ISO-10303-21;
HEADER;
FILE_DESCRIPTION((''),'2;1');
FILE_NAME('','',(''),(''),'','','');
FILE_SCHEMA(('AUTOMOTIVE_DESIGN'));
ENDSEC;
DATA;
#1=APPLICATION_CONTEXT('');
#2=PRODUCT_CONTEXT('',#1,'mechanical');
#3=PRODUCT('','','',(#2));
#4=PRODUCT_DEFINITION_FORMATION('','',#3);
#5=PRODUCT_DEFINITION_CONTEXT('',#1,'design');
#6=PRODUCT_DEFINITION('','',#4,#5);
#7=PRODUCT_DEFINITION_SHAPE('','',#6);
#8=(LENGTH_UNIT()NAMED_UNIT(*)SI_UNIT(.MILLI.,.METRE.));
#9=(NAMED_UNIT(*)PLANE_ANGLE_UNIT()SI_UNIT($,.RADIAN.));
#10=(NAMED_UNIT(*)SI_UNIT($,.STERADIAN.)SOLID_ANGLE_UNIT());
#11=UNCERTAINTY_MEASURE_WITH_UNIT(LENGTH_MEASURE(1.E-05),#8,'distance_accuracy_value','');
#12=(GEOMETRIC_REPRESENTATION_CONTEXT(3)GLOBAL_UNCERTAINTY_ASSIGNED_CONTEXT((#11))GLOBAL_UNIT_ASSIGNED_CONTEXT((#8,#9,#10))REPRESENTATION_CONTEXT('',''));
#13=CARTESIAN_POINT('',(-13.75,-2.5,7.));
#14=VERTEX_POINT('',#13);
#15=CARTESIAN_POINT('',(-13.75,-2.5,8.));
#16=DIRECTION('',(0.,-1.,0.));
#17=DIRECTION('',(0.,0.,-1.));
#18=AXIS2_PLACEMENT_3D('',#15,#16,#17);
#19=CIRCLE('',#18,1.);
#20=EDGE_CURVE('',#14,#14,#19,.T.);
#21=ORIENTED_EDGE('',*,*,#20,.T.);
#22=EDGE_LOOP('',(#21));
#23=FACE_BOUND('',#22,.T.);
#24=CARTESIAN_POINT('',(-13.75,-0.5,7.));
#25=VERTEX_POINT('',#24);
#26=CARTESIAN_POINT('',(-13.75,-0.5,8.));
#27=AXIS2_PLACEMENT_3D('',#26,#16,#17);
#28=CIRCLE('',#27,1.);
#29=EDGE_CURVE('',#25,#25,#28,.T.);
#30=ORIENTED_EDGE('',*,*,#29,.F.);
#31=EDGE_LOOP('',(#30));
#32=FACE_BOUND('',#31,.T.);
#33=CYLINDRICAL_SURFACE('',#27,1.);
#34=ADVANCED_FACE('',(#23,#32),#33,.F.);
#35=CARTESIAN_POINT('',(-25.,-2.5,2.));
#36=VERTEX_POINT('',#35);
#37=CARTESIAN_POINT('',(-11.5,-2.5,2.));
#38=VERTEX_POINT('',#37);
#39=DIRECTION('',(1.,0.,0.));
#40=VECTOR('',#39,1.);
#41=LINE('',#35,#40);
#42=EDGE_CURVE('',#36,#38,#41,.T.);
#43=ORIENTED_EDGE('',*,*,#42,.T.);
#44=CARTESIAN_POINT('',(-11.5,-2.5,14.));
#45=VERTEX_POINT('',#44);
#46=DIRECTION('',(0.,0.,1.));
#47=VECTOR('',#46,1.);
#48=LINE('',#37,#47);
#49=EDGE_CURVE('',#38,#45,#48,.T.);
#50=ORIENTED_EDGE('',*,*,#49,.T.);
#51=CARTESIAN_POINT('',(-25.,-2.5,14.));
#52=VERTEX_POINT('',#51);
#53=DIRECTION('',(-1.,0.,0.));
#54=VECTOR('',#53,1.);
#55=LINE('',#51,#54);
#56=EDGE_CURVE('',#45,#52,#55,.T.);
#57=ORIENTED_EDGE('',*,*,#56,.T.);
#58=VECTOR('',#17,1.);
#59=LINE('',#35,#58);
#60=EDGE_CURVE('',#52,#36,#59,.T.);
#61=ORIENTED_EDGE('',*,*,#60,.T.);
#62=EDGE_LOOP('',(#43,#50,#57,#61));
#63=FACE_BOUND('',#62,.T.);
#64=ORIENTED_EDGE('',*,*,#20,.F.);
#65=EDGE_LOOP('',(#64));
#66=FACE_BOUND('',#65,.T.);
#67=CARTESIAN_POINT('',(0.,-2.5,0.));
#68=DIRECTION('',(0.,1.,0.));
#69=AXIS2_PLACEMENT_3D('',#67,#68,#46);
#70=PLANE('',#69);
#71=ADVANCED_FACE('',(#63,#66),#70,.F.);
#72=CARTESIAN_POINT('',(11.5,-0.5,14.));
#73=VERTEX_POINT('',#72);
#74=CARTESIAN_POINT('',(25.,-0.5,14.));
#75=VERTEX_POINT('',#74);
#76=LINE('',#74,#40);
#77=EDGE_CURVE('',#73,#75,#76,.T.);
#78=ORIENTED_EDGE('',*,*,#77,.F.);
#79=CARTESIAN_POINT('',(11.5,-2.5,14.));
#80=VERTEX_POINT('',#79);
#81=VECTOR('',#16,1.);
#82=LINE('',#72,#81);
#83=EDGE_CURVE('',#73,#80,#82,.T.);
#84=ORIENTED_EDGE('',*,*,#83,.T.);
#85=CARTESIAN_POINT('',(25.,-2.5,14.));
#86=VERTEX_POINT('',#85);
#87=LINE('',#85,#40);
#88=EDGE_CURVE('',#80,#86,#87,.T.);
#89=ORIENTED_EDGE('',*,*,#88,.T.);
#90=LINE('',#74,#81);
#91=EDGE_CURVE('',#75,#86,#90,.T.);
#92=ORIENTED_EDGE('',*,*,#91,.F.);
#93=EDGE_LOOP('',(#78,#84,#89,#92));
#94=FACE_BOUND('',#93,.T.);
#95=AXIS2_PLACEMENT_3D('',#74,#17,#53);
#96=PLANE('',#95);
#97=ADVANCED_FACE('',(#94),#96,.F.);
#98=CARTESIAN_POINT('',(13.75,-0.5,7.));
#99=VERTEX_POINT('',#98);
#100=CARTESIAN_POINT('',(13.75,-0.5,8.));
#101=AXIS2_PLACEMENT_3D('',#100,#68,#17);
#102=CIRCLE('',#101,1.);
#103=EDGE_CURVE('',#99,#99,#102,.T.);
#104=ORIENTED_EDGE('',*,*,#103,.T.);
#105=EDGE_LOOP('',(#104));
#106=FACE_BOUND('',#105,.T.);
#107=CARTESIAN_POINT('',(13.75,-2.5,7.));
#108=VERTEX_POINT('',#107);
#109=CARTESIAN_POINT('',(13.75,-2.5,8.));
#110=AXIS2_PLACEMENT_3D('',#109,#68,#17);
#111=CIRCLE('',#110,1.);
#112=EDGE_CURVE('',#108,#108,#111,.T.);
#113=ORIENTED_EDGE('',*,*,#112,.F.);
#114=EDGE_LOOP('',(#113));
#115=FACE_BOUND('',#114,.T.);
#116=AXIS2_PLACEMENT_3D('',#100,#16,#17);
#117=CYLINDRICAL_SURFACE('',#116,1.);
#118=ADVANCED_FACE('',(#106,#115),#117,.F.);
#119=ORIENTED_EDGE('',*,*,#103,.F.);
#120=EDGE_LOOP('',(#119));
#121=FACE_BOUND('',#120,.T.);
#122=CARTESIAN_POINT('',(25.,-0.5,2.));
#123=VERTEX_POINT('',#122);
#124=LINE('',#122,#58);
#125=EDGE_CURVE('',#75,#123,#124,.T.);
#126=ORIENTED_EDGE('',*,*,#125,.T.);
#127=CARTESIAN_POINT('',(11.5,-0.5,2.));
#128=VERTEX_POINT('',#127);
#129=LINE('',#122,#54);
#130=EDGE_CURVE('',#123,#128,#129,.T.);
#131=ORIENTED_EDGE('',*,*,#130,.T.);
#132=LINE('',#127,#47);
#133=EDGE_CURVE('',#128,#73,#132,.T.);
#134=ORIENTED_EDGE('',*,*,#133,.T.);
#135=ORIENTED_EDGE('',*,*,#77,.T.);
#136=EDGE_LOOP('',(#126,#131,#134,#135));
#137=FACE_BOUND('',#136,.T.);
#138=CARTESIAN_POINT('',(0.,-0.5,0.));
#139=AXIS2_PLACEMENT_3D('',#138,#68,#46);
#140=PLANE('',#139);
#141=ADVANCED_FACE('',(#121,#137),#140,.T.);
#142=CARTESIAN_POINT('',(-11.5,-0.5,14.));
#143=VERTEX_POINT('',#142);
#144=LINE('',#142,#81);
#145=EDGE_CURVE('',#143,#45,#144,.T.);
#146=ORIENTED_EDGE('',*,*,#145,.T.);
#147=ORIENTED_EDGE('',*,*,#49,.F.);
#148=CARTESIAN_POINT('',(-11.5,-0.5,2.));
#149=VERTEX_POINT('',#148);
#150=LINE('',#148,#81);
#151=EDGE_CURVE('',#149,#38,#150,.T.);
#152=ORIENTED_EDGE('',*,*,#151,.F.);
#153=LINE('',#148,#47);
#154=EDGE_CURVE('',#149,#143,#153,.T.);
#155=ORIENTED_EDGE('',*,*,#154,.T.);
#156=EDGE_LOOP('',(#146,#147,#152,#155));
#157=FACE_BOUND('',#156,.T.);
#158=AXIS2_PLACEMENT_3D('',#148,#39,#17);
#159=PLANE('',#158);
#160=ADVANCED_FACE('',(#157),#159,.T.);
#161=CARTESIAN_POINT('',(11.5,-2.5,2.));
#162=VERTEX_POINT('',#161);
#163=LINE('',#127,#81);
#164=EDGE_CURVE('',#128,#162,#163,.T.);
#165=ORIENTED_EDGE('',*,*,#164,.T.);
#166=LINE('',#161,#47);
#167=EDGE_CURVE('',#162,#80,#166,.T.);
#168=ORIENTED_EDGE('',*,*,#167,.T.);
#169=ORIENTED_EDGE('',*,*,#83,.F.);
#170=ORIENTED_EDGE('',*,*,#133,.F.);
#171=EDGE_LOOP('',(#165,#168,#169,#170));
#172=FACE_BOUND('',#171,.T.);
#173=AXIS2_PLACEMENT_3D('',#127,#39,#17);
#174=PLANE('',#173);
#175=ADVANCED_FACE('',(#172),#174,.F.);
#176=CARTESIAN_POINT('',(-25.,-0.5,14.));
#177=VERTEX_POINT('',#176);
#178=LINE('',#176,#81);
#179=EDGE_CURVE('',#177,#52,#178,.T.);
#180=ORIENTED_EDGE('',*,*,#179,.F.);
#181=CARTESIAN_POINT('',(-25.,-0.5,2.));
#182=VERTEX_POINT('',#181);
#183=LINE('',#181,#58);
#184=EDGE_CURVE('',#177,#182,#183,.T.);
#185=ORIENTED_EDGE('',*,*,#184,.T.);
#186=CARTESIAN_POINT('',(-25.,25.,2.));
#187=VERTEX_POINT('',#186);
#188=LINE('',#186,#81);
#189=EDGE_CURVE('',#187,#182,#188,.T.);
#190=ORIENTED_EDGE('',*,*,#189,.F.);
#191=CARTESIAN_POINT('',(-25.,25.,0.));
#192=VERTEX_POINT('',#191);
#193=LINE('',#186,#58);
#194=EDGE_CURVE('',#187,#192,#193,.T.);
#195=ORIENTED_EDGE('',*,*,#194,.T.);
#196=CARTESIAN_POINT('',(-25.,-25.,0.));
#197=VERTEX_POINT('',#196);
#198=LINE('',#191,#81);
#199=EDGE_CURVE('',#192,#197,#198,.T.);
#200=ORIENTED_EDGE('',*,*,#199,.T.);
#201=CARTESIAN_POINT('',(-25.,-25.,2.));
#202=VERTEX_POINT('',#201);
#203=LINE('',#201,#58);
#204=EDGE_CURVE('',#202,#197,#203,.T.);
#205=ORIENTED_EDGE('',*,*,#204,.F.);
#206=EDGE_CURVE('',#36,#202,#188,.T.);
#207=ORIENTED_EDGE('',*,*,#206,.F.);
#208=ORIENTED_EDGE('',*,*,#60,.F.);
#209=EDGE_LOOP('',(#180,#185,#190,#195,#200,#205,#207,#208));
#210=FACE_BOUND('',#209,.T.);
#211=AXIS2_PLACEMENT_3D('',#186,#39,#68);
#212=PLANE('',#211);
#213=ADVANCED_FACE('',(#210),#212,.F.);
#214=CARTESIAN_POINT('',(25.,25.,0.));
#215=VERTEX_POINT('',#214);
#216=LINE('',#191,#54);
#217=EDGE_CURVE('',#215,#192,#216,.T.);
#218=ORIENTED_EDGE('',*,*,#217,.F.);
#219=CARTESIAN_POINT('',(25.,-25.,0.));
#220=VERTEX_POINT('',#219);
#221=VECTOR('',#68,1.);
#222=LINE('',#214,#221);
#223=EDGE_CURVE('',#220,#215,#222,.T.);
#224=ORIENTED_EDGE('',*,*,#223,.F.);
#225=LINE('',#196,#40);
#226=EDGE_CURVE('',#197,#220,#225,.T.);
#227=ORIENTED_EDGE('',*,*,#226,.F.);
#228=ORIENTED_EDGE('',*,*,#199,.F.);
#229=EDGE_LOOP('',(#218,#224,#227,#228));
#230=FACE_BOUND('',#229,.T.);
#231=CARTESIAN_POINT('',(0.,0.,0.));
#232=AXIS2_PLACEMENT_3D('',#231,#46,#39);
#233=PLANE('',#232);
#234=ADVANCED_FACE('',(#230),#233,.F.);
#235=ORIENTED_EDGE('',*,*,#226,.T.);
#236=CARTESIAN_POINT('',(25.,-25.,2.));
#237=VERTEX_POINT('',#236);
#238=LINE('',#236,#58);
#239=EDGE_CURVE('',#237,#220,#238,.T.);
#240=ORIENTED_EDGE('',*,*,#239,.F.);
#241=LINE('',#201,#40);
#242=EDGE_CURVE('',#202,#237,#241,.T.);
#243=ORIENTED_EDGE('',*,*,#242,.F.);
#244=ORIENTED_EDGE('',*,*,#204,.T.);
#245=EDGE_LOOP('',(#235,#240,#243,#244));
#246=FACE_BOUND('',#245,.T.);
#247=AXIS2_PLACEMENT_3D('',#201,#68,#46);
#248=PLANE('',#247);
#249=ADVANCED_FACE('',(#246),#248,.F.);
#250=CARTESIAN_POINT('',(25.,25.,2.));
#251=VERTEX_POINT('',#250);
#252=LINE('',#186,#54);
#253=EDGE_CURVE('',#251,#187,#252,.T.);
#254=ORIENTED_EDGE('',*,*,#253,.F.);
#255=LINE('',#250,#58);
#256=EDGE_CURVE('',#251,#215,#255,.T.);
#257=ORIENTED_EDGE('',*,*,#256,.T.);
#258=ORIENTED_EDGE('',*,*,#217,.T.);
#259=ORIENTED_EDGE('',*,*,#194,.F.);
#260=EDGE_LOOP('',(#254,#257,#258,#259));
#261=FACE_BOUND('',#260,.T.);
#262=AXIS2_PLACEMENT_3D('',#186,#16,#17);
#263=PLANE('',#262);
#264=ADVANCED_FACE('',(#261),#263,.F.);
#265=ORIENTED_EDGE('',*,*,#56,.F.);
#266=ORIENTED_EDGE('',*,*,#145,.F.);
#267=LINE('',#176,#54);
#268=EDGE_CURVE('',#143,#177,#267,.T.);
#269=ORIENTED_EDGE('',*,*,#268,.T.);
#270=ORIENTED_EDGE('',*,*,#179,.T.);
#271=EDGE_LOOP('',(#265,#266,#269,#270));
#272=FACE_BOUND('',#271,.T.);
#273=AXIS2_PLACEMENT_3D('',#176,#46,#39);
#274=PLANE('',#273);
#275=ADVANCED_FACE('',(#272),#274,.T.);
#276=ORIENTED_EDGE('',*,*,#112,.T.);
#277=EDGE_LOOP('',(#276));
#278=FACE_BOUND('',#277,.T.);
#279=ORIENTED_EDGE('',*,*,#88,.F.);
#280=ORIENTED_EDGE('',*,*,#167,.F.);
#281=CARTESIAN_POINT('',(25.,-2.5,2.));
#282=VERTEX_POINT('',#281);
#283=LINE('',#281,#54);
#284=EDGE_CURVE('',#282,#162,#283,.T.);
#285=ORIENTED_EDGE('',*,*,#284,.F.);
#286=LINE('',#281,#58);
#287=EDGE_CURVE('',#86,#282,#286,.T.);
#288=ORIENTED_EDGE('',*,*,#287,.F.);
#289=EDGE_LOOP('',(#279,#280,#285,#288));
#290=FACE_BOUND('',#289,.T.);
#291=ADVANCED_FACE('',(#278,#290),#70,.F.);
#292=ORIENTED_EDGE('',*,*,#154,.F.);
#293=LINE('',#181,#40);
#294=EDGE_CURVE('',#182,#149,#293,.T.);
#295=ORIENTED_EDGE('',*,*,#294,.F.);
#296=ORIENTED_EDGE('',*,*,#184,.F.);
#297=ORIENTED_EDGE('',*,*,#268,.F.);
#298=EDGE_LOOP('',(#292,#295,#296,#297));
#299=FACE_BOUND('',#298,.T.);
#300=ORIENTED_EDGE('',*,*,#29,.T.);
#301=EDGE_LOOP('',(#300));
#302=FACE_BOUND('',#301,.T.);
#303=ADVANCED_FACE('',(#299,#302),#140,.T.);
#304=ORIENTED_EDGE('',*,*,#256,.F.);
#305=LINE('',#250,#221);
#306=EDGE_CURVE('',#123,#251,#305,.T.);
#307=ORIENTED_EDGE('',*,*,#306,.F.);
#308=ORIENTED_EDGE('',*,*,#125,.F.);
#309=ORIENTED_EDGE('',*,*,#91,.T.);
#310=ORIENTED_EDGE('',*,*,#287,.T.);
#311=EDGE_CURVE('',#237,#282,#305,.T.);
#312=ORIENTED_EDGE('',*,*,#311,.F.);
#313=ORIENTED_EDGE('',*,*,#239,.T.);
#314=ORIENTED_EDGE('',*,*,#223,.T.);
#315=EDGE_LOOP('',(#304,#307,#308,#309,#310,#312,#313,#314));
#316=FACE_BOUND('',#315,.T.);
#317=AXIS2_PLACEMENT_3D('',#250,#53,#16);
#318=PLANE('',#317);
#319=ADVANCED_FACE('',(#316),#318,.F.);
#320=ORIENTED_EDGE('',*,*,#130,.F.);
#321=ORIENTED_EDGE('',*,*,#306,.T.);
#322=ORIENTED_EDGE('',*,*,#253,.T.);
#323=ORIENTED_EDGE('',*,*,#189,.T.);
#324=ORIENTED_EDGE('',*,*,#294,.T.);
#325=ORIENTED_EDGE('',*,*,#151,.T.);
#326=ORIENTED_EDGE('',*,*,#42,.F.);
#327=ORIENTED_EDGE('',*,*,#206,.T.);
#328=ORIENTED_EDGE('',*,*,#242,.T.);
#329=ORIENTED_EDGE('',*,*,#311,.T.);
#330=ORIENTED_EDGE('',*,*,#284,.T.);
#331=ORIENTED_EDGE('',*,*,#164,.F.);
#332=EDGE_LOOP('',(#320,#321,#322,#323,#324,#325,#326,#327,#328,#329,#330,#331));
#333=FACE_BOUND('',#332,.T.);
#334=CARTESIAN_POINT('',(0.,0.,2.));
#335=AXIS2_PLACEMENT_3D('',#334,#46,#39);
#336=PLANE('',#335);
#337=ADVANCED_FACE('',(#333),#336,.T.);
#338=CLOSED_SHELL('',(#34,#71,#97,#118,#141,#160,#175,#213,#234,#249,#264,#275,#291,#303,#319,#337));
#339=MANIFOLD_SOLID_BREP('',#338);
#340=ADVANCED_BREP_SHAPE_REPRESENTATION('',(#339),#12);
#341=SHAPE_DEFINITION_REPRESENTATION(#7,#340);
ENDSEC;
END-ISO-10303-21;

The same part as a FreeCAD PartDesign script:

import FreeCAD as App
import Part
import Sketcher
from FreeCAD import Vector
Q = App.Units.Quantity


def add_polygon(sketch, points):
    """Adds a closed chain of lines whose ends are joined by coincident constraints."""
    first, n = sketch.GeometryCount, len(points)
    for a, b in zip(points, points[1:] + points[:1]):
        sketch.addGeometry(Part.LineSegment(App.Vector(*a, 0), App.Vector(*b, 0)), False)
    for i in range(n):
        sketch.addConstraint(Sketcher.Constraint("Coincident", first + i, 2, first + (i + 1) % n, 1))

doc = App.newDocument("Part")
params = doc.addObject("Spreadsheet::Sheet", "Params")
for row, (alias, value) in enumerate([
    ("sketch1_width", "50 mm"),
    ("pad1_length", "2 mm"),
    ("sketch2_diameter", "2 mm"),
    ("sketch2_height", "12 mm"),
    ("sketch2_width", "13.5 mm"),
    ("pad2_length", "2 mm"),
], start=1):
    params.set(f"A{row}", alias)
    params.set(f"B{row}", "=" + value)
    params.setAlias(f"B{row}", alias)

body = doc.addObject("PartDesign::Body", "Body")

# Sketch on XY plane
sketch1 = body.newObject("Sketcher::SketchObject", "Sketch")
sketch1.AttachmentSupport = (doc.getObject("XY_Plane"), [""])
sketch1.MapMode = "FlatFace"
add_polygon(sketch1, [(-25, 25), (-25, -25), (25, -25), (25, 25)])  # lines 0-3
sketch1.addConstraint([
    Sketcher.Constraint("Vertical", 0),
    Sketcher.Constraint("Horizontal", 1),
    Sketcher.Constraint("Vertical", 2),
    Sketcher.Constraint("Horizontal", 3),
    Sketcher.Constraint("Symmetric", 0, 2, 2, 2, -1, 1),
    Sketcher.Constraint("Equal", 3, 0),
    Sketcher.Constraint("DistanceX", 1, 1, 1, 2, Q("50 mm")),
])
sketch1.setExpression("Constraints[10]", "Params.sketch1_width")
pad1 = body.newObject("PartDesign::Pad", "Pad")
pad1.Profile = sketch1
pad1.setExpression("Length", "Params.pad1_length")

# Sketch on XZ plane
sketch2 = body.newObject("Sketcher::SketchObject", "Sketch001")
sketch2.AttachmentSupport = (doc.getObject("XZ_Plane"), [""])
sketch2.MapMode = "FlatFace"
sketch2.AttachmentOffset = App.Placement(Vector(0, 0, 2.5), App.Rotation())
add_polygon(sketch2, [(-25, 14), (-25, 2), (-11.5, 2), (-11.5, 14)])  # lines 0-3
sketch2.addGeometry(Part.Circle(Vector(-13.8, 8, 0), Vector(0, 0, 1), 1), False)  # 4
sketch2.addConstraint([
    Sketcher.Constraint("Vertical", 0),
    Sketcher.Constraint("Horizontal", 1),
    Sketcher.Constraint("Vertical", 2),
    Sketcher.Constraint("Horizontal", 3),
    Sketcher.Constraint("Diameter", 4, Q("2 mm")),
    Sketcher.Constraint("DistanceY", 0, 2, 0, 1, Q("12 mm")),
    Sketcher.Constraint("DistanceX", 1, 1, 1, 2, Q("13.5 mm")),
    Sketcher.Constraint("DistanceY", -1, 1, 4, 3, Q("8 mm")),
    Sketcher.Constraint("DistanceX", 0, 2, -1, 1, Q("25 mm")),
    Sketcher.Constraint("DistanceY", -1, 1, 0, 2, Q("2 mm")),
    Sketcher.Constraint("DistanceX", 4, 3, -1, 1, Q("13.75 mm")),
])
sketch2.setExpression("Constraints[8]", "Params.sketch2_diameter")
sketch2.setExpression("Constraints[9]", "Params.sketch2_height")
sketch2.setExpression("Constraints[10]", "Params.sketch2_width")
pad2 = body.newObject("PartDesign::Pad", "Pad001")
pad2.Profile = sketch2
pad2.setExpression("Length", "Params.pad2_length")
pad2.Reversed = True
doc.recompute()

mirrored = body.newObject("PartDesign::Mirrored", "Mirrored")
mirrored.Originals = [pad2]
mirrored.MirrorPlane = (doc.getObject("YZ_Plane"), [""])
body.Tip = mirrored

doc.recompute()
